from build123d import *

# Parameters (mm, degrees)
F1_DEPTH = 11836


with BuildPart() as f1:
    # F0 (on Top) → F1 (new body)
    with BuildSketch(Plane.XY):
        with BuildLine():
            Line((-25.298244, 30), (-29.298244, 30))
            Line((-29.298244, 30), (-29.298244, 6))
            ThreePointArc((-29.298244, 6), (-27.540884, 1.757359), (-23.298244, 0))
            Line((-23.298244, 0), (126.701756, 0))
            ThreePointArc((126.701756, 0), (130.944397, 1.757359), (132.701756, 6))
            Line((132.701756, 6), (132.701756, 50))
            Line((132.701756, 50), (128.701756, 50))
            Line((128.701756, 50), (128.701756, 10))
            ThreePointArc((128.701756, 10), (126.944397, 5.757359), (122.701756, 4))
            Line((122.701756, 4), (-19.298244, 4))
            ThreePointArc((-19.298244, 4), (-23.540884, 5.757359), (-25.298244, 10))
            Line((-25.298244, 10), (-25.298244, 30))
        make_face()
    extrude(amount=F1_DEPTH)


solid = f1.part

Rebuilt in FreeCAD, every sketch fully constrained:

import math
import FreeCAD as App
import Part
import Sketcher

V = App.Vector

doc = App.newDocument("Part")
body = doc.addObject("PartDesign::Body", "Body")

# Sketch on XY plane
sketch1 = body.newObject("Sketcher::SketchObject", "Sketch")
sketch1.AttachmentSupport = (doc.getObject("XY_Plane"), [""])
sketch1.MapMode = "FlatFace"
sketch1.addGeometry([
    Part.LineSegment(V(-25.298244, 30, 0), V(-29.298244, 30, 0)),  # 0
    Part.LineSegment(V(-29.298244, 30, 0), V(-29.298244, 6, 0)),  # 1
    Part.ArcOfCircle(Part.Circle(V(-23.298243, 6.000001, 0), V(0, 0, 1), 6.000001), math.radians(-179.999994), math.radians(-90.000006)),  # 2
    Part.LineSegment(V(-23.298244, 0, 0), V(126.701756, 0, 0)),  # 3
    Part.ArcOfCircle(Part.Circle(V(126.701757, 5.999999, 0), V(0, 0, 1), 5.999999), math.radians(-90.00001), math.radians(0.00001)),  # 4
    Part.LineSegment(V(132.701756, 6, 0), V(132.701756, 50, 0)),  # 5
    Part.LineSegment(V(132.701756, 50, 0), V(128.701756, 50, 0)),  # 6
    Part.LineSegment(V(128.701756, 50, 0), V(128.701756, 10, 0)),  # 7
    Part.ArcOfCircle(Part.Circle(V(122.701757, 9.999999, 0), V(0, 0, 1), 5.999999), math.radians(-90.00001), math.radians(0.00001)),  # 8
    Part.LineSegment(V(122.701756, 4, 0), V(-19.298244, 4, 0)),  # 9
    Part.ArcOfCircle(Part.Circle(V(-19.298243, 10.000001, 0), V(0, 0, 1), 6.000001), math.radians(-179.999994), math.radians(-90.000006)),  # 10
    Part.LineSegment(V(-25.298244, 10, 0), V(-25.298244, 30, 0)),  # 11
], False)
sketch1.addConstraint([
    Sketcher.Constraint("Coincident", 0, 2, 1, 1),
    Sketcher.Constraint("Tangent", 1, 2, 2, 1),
    Sketcher.Constraint("Tangent", 2, 2, 3, 1),
    Sketcher.Constraint("Tangent", 3, 2, 4, 1),
    Sketcher.Constraint("Tangent", 4, 2, 5, 1),
    Sketcher.Constraint("Coincident", 5, 2, 6, 1),
    Sketcher.Constraint("Coincident", 6, 2, 7, 1),
    Sketcher.Constraint("Tangent", 7, 2, 8, 2),
    Sketcher.Constraint("Tangent", 8, 1, 9, 1),
    Sketcher.Constraint("Tangent", 9, 2, 10, 2),
    Sketcher.Constraint("Tangent", 10, 1, 11, 1),
    Sketcher.Constraint("Coincident", 11, 2, 0, 1),
    Sketcher.Constraint("Horizontal", 0),
    Sketcher.Constraint("Vertical", 1),
    Sketcher.Constraint("Horizontal", 3),
    Sketcher.Constraint("Vertical", 5),
    Sketcher.Constraint("Horizontal", 6),
    Sketcher.Constraint("Vertical", 7),
    Sketcher.Constraint("Horizontal", 9),
    Sketcher.Constraint("Vertical", 11),
    Sketcher.Constraint("Equal", 2, 4),
    Sketcher.Constraint("Equal", 4, 8),
    Sketcher.Constraint("Equal", 8, 10),
    Sketcher.Constraint("PointOnObject", 2, 2, -1),
    Sketcher.Constraint("Equal", 0, 6),
    Sketcher.Constraint("Radius", 2, 6.000001),
    Sketcher.Constraint("DistanceX", 0, 2, 0, 1, 4.0),
    Sketcher.Constraint("DistanceX", 3, 1, 3, 2, 150.0),
    Sketcher.Constraint("DistanceY", 1, 2, 1, 1, 24.0),
    Sketcher.Constraint("DistanceY", 5, 1, 5, 2, 44.0),
    Sketcher.Constraint("DistanceY", 7, 2, 7, 1, 40.0),
    Sketcher.Constraint("DistanceX", 2, 3, -1, 1, 23.298243),
])
pad1 = body.newObject("PartDesign::Pad", "Pad")
pad1.Profile = sketch1
pad1.Length = 11836

doc.recompute()
